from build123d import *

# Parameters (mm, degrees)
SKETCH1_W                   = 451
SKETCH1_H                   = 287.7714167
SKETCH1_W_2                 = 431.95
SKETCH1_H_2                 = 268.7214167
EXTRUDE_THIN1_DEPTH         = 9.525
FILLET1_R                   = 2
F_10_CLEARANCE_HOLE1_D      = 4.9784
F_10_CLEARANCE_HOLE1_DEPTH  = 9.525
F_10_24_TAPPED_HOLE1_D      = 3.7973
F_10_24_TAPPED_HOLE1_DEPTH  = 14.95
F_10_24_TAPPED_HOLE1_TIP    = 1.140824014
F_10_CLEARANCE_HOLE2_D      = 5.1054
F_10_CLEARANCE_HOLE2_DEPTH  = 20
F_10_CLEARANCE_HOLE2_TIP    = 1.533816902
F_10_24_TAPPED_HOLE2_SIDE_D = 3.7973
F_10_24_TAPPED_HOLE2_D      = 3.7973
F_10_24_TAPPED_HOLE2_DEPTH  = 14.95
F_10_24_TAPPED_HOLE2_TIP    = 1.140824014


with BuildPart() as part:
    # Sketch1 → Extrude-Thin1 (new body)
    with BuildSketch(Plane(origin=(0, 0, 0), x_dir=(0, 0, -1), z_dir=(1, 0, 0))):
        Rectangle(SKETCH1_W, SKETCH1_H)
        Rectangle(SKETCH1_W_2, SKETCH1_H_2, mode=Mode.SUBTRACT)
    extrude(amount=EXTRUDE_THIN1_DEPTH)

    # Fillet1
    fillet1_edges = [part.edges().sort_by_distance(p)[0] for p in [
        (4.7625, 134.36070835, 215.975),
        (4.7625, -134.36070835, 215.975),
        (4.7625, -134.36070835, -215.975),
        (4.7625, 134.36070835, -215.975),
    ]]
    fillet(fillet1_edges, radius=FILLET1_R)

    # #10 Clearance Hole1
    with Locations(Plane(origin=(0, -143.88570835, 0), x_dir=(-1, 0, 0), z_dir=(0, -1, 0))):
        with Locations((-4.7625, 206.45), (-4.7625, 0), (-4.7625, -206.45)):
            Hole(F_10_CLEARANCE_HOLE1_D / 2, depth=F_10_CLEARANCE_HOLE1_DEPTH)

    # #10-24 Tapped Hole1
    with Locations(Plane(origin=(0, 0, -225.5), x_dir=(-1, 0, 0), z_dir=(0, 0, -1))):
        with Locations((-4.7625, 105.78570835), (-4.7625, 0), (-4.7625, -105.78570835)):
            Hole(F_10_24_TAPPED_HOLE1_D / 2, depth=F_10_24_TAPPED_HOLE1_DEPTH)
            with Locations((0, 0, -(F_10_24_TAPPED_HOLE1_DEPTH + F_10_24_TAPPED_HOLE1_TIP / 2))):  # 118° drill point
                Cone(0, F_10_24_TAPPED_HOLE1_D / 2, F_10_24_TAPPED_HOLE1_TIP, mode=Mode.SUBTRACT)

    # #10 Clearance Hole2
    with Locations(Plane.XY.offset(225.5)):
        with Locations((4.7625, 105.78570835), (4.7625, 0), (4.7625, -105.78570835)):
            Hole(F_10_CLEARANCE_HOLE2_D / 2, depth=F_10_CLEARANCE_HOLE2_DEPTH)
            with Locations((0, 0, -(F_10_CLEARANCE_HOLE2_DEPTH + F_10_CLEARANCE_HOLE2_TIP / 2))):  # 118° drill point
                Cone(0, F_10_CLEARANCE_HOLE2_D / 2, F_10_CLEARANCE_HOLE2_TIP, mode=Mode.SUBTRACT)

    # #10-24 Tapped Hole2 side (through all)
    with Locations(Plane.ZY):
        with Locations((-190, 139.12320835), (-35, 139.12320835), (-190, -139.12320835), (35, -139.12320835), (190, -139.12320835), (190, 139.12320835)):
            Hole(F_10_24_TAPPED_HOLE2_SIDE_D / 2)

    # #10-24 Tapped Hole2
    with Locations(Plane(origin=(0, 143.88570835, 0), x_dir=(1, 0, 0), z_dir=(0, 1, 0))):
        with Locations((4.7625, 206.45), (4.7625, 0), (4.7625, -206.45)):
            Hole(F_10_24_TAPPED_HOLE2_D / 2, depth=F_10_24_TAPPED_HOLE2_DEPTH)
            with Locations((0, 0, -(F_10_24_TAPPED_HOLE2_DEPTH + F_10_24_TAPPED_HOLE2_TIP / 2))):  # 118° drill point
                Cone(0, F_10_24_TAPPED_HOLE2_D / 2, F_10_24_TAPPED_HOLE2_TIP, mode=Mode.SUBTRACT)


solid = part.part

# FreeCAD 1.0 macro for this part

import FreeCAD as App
import Part
import Sketcher


def edges_at(feature, points):
    """Names of the edges that pass closest to the given points."""
    edges = feature.Shape.Edges
    near = lambda p: min(range(len(edges)), key=lambda i: edges[i].distToShape(Part.Vertex(*p))[0])
    return sorted({f"Edge{near(p) + 1}" for p in points})

doc = App.newDocument("Part")
params = doc.addObject("Spreadsheet::Sheet", "Params")
for row, (alias, value) in enumerate([
    ("sketch1_height", "451 mm"),
    ("sketch1_height2", "431.95 mm"),
    ("pad1_length", "9.525 mm"),
    ("fillet_radius", "2 mm"),
    ("hole_diameter", "4.9784 mm"),
    ("hole_depth", "9.525 mm"),
    ("hole2_diameter", "3.7973 mm"),
    ("hole2_depth", "14.95 mm"),
    ("hole3_diameter", "5.1054 mm"),
    ("hole3_depth", "20 mm"),
    ("hole4_diameter", "3.7973 mm"),
    ("hole5_diameter", "3.7973 mm"),
    ("hole5_depth", "14.95 mm"),
], start=1):
    params.set(f"A{row}", alias)
    params.set(f"B{row}", "=" + value)
    params.setAlias(f"B{row}", alias)

body = doc.addObject("PartDesign::Body", "Body")

sketch1 = body.newObject("Sketcher::SketchObject", "Sketch")
sketch1.AttachmentSupport = (doc.getObject("YZ_Plane"), [""])
sketch1.MapMode = "FlatFace"
sketch1.addGeometry([
    Part.LineSegment(App.Vector(144, 226, 0), App.Vector(-144, 226, 0)),
    Part.LineSegment(App.Vector(-144, 226, 0), App.Vector(-144, -226, 0)),
    Part.LineSegment(App.Vector(-144, -226, 0), App.Vector(144, -226, 0)),
    Part.LineSegment(App.Vector(144, -226, 0), App.Vector(144, 226, 0)),
    Part.LineSegment(App.Vector(-134, -216, 0), App.Vector(-134, 216, 0)),
    Part.LineSegment(App.Vector(-134, 216, 0), App.Vector(134, 216, 0)),
    Part.LineSegment(App.Vector(134, 216, 0), App.Vector(134, -216, 0)),
    Part.LineSegment(App.Vector(134, -216, 0), App.Vector(-134, -216, 0)),
], False)
sketch1.addConstraint([
    Sketcher.Constraint("Coincident", 0, 2, 1, 1),
    Sketcher.Constraint("Coincident", 1, 2, 2, 1),
    Sketcher.Constraint("Coincident", 2, 2, 3, 1),
    Sketcher.Constraint("Coincident", 3, 2, 0, 1),
    Sketcher.Constraint("Coincident", 4, 2, 5, 1),
    Sketcher.Constraint("Coincident", 5, 2, 6, 1),
    Sketcher.Constraint("Coincident", 6, 2, 7, 1),
    Sketcher.Constraint("Coincident", 7, 2, 4, 1),
    Sketcher.Constraint("Horizontal", 0),
    Sketcher.Constraint("Vertical", 1),
    Sketcher.Constraint("Horizontal", 2),
    Sketcher.Constraint("Vertical", 3),
    Sketcher.Constraint("Vertical", 4),
    Sketcher.Constraint("Horizontal", 5),
    Sketcher.Constraint("Vertical", 6),
    Sketcher.Constraint("Horizontal", 7),
    Sketcher.Constraint("Symmetric", 0, 2, 2, 2, -1, 1),
    Sketcher.Constraint("Symmetric", 4, 2, 6, 2, -1, 1),
    Sketcher.Constraint("DistanceY", 1, 2, 1, 1, 451.0),
    Sketcher.Constraint("DistanceY", 4, 1, 4, 2, 431.95),
    Sketcher.Constraint("DistanceX", 0, 2, 4, 2, 9.525),
    Sketcher.Constraint("DistanceX", 0, 2, 0, 1, 287.771417),
])
sketch1.setExpression("Constraints[18]", "Params.sketch1_height")
sketch1.setExpression("Constraints[19]", "Params.sketch1_height2")
pad1 = body.newObject("PartDesign::Pad", "Pad")
pad1.Profile = sketch1
pad1.setExpression("Length", "Params.pad1_length")
doc.recompute()

fillet = body.newObject("PartDesign::Fillet", "Fillet")
fillet.Base = (pad1, edges_at(pad1, [
    (4.763, 134.361, 215.975),
    (4.763, -134.361, 215.975),
    (4.763, -134.361, -215.975),
    (4.763, 134.361, -215.975),
]))
fillet.setExpression("Radius", "Params.fillet_radius")

sketch2 = body.newObject("Sketcher::SketchObject", "Sketch001")
sketch2.AttachmentSupport = (doc.getObject("XZ_Plane"), [""])
sketch2.MapMode = "FlatFace"
sketch2.AttachmentOffset = App.Placement(App.Vector(0, 0, 143.885708), App.Rotation())
sketch2.addGeometry([
    Part.Circle(App.Vector(4.8, -206.4, 0), App.Vector(0, 0, 1), 2.5),
    Part.Circle(App.Vector(4.8, 0, 0), App.Vector(0, 0, 1), 2.5),
    Part.Circle(App.Vector(4.8, 206.4, 0), App.Vector(0, 0, 1), 2.5),
], False)
sketch2.addConstraint([
    Sketcher.Constraint("Equal", 0, 1),
    Sketcher.Constraint("Equal", 1, 2),
    Sketcher.Constraint("Symmetric", 0, 3, 2, 3, -1),
    Sketcher.Constraint("PointOnObject", 1, 3, -1),
    Sketcher.Constraint("Vertical", 0, 3, 1, 3),
    Sketcher.Constraint("Diameter", 0, 4.9784),
    Sketcher.Constraint("DistanceY", 0, 3, 2, 3, 412.9),
    Sketcher.Constraint("DistanceX", -1, 1, 0, 3, 4.7625),
])
doc.recompute()
hole = body.newObject("PartDesign::Hole", "Hole")
hole.Profile = sketch2
hole.ThreadType = "None"
hole.setExpression("Diameter", "Params.hole_diameter")
hole.DepthType = "Dimension"
hole.setExpression("Depth", "Params.hole_depth")
hole.DrillPoint = "Flat"

sketch3 = body.newObject("Sketcher::SketchObject", "Sketch002")
sketch3.AttachmentSupport = (doc.getObject("XY_Plane"), [""])
sketch3.MapMode = "FlatFace"
sketch3.AttachmentOffset = App.Placement(App.Vector(0, 0, -225.5), App.Rotation())
sketch3.addGeometry([
    Part.Circle(App.Vector(4.8, 105.8, 0), App.Vector(0, 0, 1), 1.9),
    Part.Circle(App.Vector(4.8, 0, 0), App.Vector(0, 0, 1), 1.9),
    Part.Circle(App.Vector(4.8, -105.8, 0), App.Vector(0, 0, 1), 1.9),
], False)
sketch3.addConstraint([
    Sketcher.Constraint("Equal", 0, 1),
    Sketcher.Constraint("Equal", 1, 2),
    Sketcher.Constraint("Symmetric", 0, 3, 2, 3, -1),
    Sketcher.Constraint("PointOnObject", 1, 3, -1),
    Sketcher.Constraint("Vertical", 0, 3, 1, 3),
    Sketcher.Constraint("Diameter", 0, 3.7973),
    Sketcher.Constraint("DistanceX", -1, 1, 0, 3, 4.7625),
    Sketcher.Constraint("DistanceY", -1, 1, 0, 3, 105.785708),
])
doc.recompute()
hole2 = body.newObject("PartDesign::Hole", "Hole001")
hole2.Profile = sketch3
hole2.ThreadType = "None"
hole2.setExpression("Diameter", "Params.hole2_diameter")
hole2.DepthType = "Dimension"
hole2.setExpression("Depth", "Params.hole2_depth")
hole2.DrillPoint = "Angled"
hole2.DrillPointAngle = 118
hole2.Reversed = True

sketch4 = body.newObject("Sketcher::SketchObject", "Sketch003")
sketch4.AttachmentSupport = (doc.getObject("XY_Plane"), [""])
sketch4.MapMode = "FlatFace"
sketch4.AttachmentOffset = App.Placement(App.Vector(0, 0, 225.5), App.Rotation())
sketch4.addGeometry([
    Part.Circle(App.Vector(4.8, 105.8, 0), App.Vector(0, 0, 1), 2.6),
    Part.Circle(App.Vector(4.8, 0, 0), App.Vector(0, 0, 1), 2.6),
    Part.Circle(App.Vector(4.8, -105.8, 0), App.Vector(0, 0, 1), 2.6),
], False)
sketch4.addConstraint([
    Sketcher.Constraint("Equal", 0, 1),
    Sketcher.Constraint("Equal", 1, 2),
    Sketcher.Constraint("Symmetric", 0, 3, 2, 3, -1),
    Sketcher.Constraint("PointOnObject", 1, 3, -1),
    Sketcher.Constraint("Vertical", 0, 3, 1, 3),
    Sketcher.Constraint("Diameter", 0, 5.1054),
    Sketcher.Constraint("DistanceX", -1, 1, 0, 3, 4.7625),
    Sketcher.Constraint("DistanceY", -1, 1, 0, 3, 105.785708),
])
doc.recompute()
hole3 = body.newObject("PartDesign::Hole", "Hole002")
hole3.Profile = sketch4
hole3.ThreadType = "None"
hole3.setExpression("Diameter", "Params.hole3_diameter")
hole3.DepthType = "Dimension"
hole3.setExpression("Depth", "Params.hole3_depth")
hole3.DrillPoint = "Angled"
hole3.DrillPointAngle = 118

sketch5 = body.newObject("Sketcher::SketchObject", "Sketch004")
sketch5.AttachmentSupport = (doc.getObject("YZ_Plane"), [""])
sketch5.MapMode = "FlatFace"
sketch5.addGeometry([
    Part.Circle(App.Vector(139.1, -190, 0), App.Vector(0, 0, 1), 1.9),
    Part.Circle(App.Vector(139.1, -35, 0), App.Vector(0, 0, 1), 1.9),
    Part.Circle(App.Vector(-139.1, -190, 0), App.Vector(0, 0, 1), 1.9),
    Part.Circle(App.Vector(-139.1, 35, 0), App.Vector(0, 0, 1), 1.9),
    Part.Circle(App.Vector(-139.1, 190, 0), App.Vector(0, 0, 1), 1.9),
    Part.Circle(App.Vector(139.1, 190, 0), App.Vector(0, 0, 1), 1.9),
], False)
sketch5.addConstraint([
    Sketcher.Constraint("Equal", 0, 1),
    Sketcher.Constraint("Equal", 1, 2),
    Sketcher.Constraint("Equal", 2, 3),
    Sketcher.Constraint("Equal", 3, 4),
    Sketcher.Constraint("Equal", 4, 5),
    Sketcher.Constraint("Symmetric", 1, 3, 3, 3, -1, 1),
    Sketcher.Constraint("Symmetric", 0, 3, 4, 3, -1, 1),
    Sketcher.Constraint("Symmetric", 2, 3, 5, 3, -1, 1),
    Sketcher.Constraint("Symmetric", 0, 3, 2, 3, -2),
    Sketcher.Constraint("Vertical", 0, 3, 1, 3),
    Sketcher.Constraint("DistanceY", 0, 3, -1, 1, 190.0),
    Sketcher.Constraint("DistanceY", 1, 3, -1, 1, 35.0),
    Sketcher.Constraint("Diameter", 0, 3.7973),
    Sketcher.Constraint("DistanceX", -1, 1, 0, 3, 139.123208),
])
doc.recompute()
hole4 = body.newObject("PartDesign::Hole", "Hole003")
hole4.Profile = sketch5
hole4.ThreadType = "None"
hole4.setExpression("Diameter", "Params.hole4_diameter")
hole4.DepthType = "ThroughAll"
hole4.Reversed = True

sketch6 = body.newObject("Sketcher::SketchObject", "Sketch005")
sketch6.AttachmentSupport = (doc.getObject("XZ_Plane"), [""])
sketch6.MapMode = "FlatFace"
sketch6.AttachmentOffset = App.Placement(App.Vector(0, 0, -143.885708), App.Rotation())
sketch6.addGeometry([
    Part.Circle(App.Vector(4.8, -206.4, 0), App.Vector(0, 0, 1), 1.9),
    Part.Circle(App.Vector(4.8, 0, 0), App.Vector(0, 0, 1), 1.9),
    Part.Circle(App.Vector(4.8, 206.4, 0), App.Vector(0, 0, 1), 1.9),
], False)
sketch6.addConstraint([
    Sketcher.Constraint("Equal", 0, 1),
    Sketcher.Constraint("Equal", 1, 2),
    Sketcher.Constraint("Symmetric", 0, 3, 2, 3, -1),
    Sketcher.Constraint("PointOnObject", 1, 3, -1),
    Sketcher.Constraint("Vertical", 0, 3, 1, 3),
    Sketcher.Constraint("Diameter", 0, 3.7973),
    Sketcher.Constraint("DistanceY", 0, 3, 2, 3, 412.9),
    Sketcher.Constraint("DistanceX", -1, 1, 0, 3, 4.7625),
])
doc.recompute()
hole5 = body.newObject("PartDesign::Hole", "Hole004")
hole5.Profile = sketch6
hole5.ThreadType = "None"
hole5.setExpression("Diameter", "Params.hole5_diameter")
hole5.DepthType = "Dimension"
hole5.setExpression("Depth", "Params.hole5_depth")
hole5.DrillPoint = "Angled"
hole5.DrillPointAngle = 118
hole5.Reversed = True

doc.recompute()
